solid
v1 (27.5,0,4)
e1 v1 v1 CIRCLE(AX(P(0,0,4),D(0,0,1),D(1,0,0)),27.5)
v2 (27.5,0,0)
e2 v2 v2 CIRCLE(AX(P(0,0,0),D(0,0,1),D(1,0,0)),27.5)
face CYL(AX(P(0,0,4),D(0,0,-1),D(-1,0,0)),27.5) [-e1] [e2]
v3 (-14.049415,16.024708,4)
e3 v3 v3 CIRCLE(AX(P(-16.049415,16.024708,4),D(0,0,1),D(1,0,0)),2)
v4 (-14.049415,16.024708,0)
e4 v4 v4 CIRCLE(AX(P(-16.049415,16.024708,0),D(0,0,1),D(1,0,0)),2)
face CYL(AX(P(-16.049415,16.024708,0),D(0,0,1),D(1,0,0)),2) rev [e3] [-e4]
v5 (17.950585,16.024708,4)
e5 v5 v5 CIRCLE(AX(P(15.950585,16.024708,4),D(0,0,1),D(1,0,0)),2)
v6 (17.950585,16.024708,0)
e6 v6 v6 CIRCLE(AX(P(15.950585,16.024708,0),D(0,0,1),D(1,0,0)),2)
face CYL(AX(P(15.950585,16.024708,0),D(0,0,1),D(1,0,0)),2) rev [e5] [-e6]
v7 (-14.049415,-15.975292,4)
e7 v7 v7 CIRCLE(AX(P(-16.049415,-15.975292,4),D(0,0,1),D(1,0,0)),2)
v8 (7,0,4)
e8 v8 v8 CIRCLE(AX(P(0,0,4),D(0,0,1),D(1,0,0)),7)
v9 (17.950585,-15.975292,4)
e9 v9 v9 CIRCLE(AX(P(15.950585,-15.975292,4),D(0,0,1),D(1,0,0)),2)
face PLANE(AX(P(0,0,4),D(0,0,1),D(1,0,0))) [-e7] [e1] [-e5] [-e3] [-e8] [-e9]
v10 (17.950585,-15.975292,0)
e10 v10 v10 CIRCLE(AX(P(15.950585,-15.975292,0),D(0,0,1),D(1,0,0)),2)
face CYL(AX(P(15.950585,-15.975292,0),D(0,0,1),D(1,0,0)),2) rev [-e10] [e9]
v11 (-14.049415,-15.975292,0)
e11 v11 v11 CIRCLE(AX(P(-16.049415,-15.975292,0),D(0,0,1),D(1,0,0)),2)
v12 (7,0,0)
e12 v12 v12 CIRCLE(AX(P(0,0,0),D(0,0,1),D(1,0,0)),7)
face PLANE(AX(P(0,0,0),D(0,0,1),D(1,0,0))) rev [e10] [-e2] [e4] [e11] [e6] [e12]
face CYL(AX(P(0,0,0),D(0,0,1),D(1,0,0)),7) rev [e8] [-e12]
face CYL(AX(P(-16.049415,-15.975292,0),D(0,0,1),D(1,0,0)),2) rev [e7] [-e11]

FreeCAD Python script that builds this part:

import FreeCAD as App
import Part
import Sketcher

V = App.Vector

doc = App.newDocument("Part")
body = doc.addObject("PartDesign::Body", "Body")

# Sketch on XY plane
sketch1 = body.newObject("Sketcher::SketchObject", "Sketch")
sketch1.AttachmentSupport = (doc.getObject("XY_Plane"), [""])
sketch1.MapMode = "FlatFace"
sketch1.addGeometry(Part.Circle(V(0, 0, 0), V(0, 0, 1), 28), False)
sketch1.addConstraint(Sketcher.Constraint("Coincident", 0, 3, -1, 1))
sketch1.addConstraint(Sketcher.Constraint("Diameter", 0, 55.0))
pad1 = body.newObject("PartDesign::Pad", "Pad")
pad1.Profile = sketch1
pad1.Length = 4

# Sketch on XY plane
sketch2 = body.newObject("Sketcher::SketchObject", "Sketch001")
sketch2.AttachmentSupport = (doc.getObject("XY_Plane"), [""])
sketch2.MapMode = "FlatFace"
sketch2.AttachmentOffset = App.Placement(V(0, 0, 4), App.Rotation())
sketch2.addGeometry(Part.Circle(V(-16, 16, 0), V(0, 0, 1), 2), False)
sketch2.addGeometry(Part.Circle(V(-16, -16, 0), V(0, 0, 1), 2), False)
sketch2.addGeometry(Part.Circle(V(16, -16, 0), V(0, 0, 1), 2), False)
sketch2.addGeometry(Part.Circle(V(16, 16, 0), V(0, 0, 1), 2), False)
sketch2.addConstraint(Sketcher.Constraint("Equal", 0, 1))
sketch2.addConstraint(Sketcher.Constraint("Equal", 1, 2))
sketch2.addConstraint(Sketcher.Constraint("Equal", 2, 3))
sketch2.addConstraint(Sketcher.Constraint("Horizontal", 1, 3, 2, 3))
sketch2.addConstraint(Sketcher.Constraint("Horizontal", 0, 3, 3, 3))
sketch2.addConstraint(Sketcher.Constraint("Vertical", 0, 3, 1, 3))
sketch2.addConstraint(Sketcher.Constraint("Vertical", 2, 3, 3, 3))
sketch2.addConstraint(Sketcher.Constraint("Diameter", 0, 4.0))
sketch2.addConstraint(Sketcher.Constraint("DistanceY", 1, 3, 0, 3, 32.0))
sketch2.addConstraint(Sketcher.Constraint("DistanceX", 1, 3, 2, 3, 32.0))
sketch2.addConstraint(Sketcher.Constraint("DistanceX", 0, 3, -1, 1, 16.049415))
sketch2.addConstraint(Sketcher.Constraint("DistanceY", -1, 1, 0, 3, 16.024708))
pocket1 = body.newObject("PartDesign::Pocket", "Pocket")
pocket1.Profile = sketch2
pocket1.Length = 4

# Sketch on XY plane
sketch3 = body.newObject("Sketcher::SketchObject", "Sketch002")
sketch3.AttachmentSupport = (doc.getObject("XY_Plane"), [""])
sketch3.MapMode = "FlatFace"
sketch3.AttachmentOffset = App.Placement(V(0, 0, 4), App.Rotation())
sketch3.addGeometry(Part.Circle(V(0, 0, 0), V(0, 0, 1), 7), False)
sketch3.addConstraint(Sketcher.Constraint("Coincident", 0, 3, -1, 1))
sketch3.addConstraint(Sketcher.Constraint("Diameter", 0, 14.0))
pocket2 = body.newObject("PartDesign::Pocket", "Pocket001")
pocket2.Profile = sketch3
pocket2.Length = 4

doc.recompute()
